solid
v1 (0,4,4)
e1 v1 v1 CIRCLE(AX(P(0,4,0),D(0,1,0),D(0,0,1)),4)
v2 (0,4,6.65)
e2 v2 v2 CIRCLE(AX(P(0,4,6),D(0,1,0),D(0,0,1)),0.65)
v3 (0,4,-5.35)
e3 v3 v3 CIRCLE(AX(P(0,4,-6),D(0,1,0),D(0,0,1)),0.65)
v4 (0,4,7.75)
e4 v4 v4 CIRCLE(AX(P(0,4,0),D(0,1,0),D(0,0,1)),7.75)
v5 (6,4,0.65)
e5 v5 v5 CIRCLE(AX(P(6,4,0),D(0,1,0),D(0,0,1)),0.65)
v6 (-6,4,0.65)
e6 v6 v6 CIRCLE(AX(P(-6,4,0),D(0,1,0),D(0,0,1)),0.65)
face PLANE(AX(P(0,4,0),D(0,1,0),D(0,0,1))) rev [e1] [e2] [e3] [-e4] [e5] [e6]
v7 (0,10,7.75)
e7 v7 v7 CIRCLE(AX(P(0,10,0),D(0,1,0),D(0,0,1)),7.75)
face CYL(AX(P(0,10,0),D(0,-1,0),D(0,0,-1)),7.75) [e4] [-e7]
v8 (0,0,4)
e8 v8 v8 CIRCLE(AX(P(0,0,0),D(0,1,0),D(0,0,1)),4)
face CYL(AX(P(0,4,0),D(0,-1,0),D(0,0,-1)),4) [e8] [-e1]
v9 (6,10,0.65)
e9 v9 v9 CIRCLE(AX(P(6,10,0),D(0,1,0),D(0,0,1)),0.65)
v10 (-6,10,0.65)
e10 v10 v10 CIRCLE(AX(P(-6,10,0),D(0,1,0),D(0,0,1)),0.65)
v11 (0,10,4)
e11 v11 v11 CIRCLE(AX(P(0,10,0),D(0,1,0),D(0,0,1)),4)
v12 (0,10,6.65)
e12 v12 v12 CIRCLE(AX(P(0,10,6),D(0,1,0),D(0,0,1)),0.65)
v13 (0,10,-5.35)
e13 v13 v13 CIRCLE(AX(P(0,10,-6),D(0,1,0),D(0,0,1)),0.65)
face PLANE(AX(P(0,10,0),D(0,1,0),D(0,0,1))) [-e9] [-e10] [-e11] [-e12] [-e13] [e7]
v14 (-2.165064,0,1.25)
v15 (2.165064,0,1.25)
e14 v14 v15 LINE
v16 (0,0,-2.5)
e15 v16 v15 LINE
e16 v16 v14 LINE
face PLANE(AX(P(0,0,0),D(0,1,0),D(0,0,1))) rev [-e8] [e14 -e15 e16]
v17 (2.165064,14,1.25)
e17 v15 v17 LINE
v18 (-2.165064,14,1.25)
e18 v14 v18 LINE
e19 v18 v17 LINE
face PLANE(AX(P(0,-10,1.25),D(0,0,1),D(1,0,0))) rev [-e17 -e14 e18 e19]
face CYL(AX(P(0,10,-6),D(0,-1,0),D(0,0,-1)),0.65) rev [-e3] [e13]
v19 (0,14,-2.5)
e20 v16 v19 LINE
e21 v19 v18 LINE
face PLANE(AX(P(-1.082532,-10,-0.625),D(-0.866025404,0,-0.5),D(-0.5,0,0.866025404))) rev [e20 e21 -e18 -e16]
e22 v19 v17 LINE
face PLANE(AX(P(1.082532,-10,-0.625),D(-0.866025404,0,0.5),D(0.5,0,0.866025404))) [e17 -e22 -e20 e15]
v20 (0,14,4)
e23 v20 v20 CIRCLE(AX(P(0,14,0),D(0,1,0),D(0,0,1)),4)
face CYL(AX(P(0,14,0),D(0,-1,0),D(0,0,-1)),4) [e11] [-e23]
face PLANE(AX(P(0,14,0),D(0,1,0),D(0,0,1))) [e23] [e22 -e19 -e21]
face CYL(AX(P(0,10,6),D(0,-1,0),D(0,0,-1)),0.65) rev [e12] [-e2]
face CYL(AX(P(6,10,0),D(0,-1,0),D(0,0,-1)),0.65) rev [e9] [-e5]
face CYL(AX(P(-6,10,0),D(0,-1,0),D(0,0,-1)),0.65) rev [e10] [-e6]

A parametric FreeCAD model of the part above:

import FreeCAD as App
import Part
import Sketcher

V = App.Vector
Q = App.Units.Quantity


def add_polygon(sketch, points):
    """Adds a closed chain of lines whose ends are joined by coincident constraints."""
    first, n = sketch.GeometryCount, len(points)
    for a, b in zip(points, points[1:] + points[:1]):
        sketch.addGeometry(Part.LineSegment(App.Vector(*a, 0), App.Vector(*b, 0)), False)
    for i in range(n):
        sketch.addConstraint(Sketcher.Constraint("Coincident", first + i, 2, first + (i + 1) % n, 1))

doc = App.newDocument("Part")
body = doc.addObject("PartDesign::Body", "Body")

# Sketch on XZ plane
sketch1 = body.newObject("Sketcher::SketchObject", "Sketch")
sketch1.AttachmentSupport = (doc.getObject("XZ_Plane"), [""])
sketch1.MapMode = "FlatFace"
sketch1.addGeometry(Part.Circle(V(0, 0, 0), V(0, 0, 1), 4), False)
sketch1.addConstraint([
    Sketcher.Constraint("Coincident", 0, 3, -1, 1),
    Sketcher.Constraint("Diameter", 0, 8.0),
])
pad1 = body.newObject("PartDesign::Pad", "Pad")
pad1.Profile = sketch1
pad1.Length = 4
pad1.Reversed = True

# Sketch on XZ plane
sketch2 = body.newObject("Sketcher::SketchObject", "Sketch001")
sketch2.AttachmentSupport = (doc.getObject("XZ_Plane"), [""])
sketch2.MapMode = "FlatFace"
sketch2.AttachmentOffset = App.Placement(V(0, 0, -4), App.Rotation())
sketch2.addGeometry([
    Part.Circle(V(0, 0, 0), V(0, 0, 1), 7.8),  # 0
    Part.Circle(V(0, -6, 0), V(0, 0, 1), 0.7),  # 1
    Part.Circle(V(-6, 0, 0), V(0, 0, 1), 0.7),  # 2
    Part.Circle(V(6, 0, 0), V(0, 0, 1), 0.7),  # 3
    Part.Circle(V(0, 6, 0), V(0, 0, 1), 0.7),  # 4
], False)
sketch2.addConstraint([
    Sketcher.Constraint("Coincident", 0, 3, -1, 1),
    Sketcher.Constraint("Equal", 1, 2),
    Sketcher.Constraint("Equal", 2, 3),
    Sketcher.Constraint("Equal", 3, 4),
    Sketcher.Constraint("Symmetric", 2, 3, 3, 3, -1, 1),
    Sketcher.Constraint("Symmetric", 1, 3, 4, 3, -1, 1),
    Sketcher.Constraint("PointOnObject", 1, 3, -2),
    Sketcher.Constraint("PointOnObject", 2, 3, -1),
    Sketcher.Constraint("Diameter", 0, 15.5),
    Sketcher.Constraint("Diameter", 1, 1.3),
    Sketcher.Constraint("DistanceY", 1, 3, -1, 1, 6.0),
    Sketcher.Constraint("DistanceX", 2, 3, -1, 1, 6.0),
])
pad2 = body.newObject("PartDesign::Pad", "Pad001")
pad2.Profile = sketch2
pad2.Length = 6
pad2.Reversed = True

# Sketch on XZ plane
sketch3 = body.newObject("Sketcher::SketchObject", "Sketch002")
sketch3.AttachmentSupport = (doc.getObject("XZ_Plane"), [""])
sketch3.MapMode = "FlatFace"
sketch3.AttachmentOffset = App.Placement(V(0, 0, -10), App.Rotation())
sketch3.addGeometry(Part.Circle(V(0, 0, 0), V(0, 0, 1), 4), False)
sketch3.addConstraint([
    Sketcher.Constraint("Coincident", 0, 3, -1, 1),
    Sketcher.Constraint("Diameter", 0, 8.0),
])
pad3 = body.newObject("PartDesign::Pad", "Pad002")
pad3.Profile = sketch3
pad3.Length = 4
pad3.Reversed = True

# Sketch on XZ plane
sketch4 = body.newObject("Sketcher::SketchObject", "Sketch003")
sketch4.AttachmentSupport = (doc.getObject("XZ_Plane"), [""])
sketch4.MapMode = "FlatFace"
sketch4.AttachmentOffset = App.Placement(V(0, 0, -14), App.Rotation())
add_polygon(sketch4, [(2.2, 1.2), (0, -2.5), (-2.2, 1.2)])  # lines 0-2
sketch4.addConstraint([
    Sketcher.Constraint("Horizontal", 2),
    Sketcher.Constraint("PointOnObject", 0, 2, -2),
    Sketcher.Constraint("Equal", 0, 1),
    Sketcher.Constraint("Angle", 0, Q("-120 deg")),
    Sketcher.Constraint("DistanceY", 0, 2, -1, 1, 2.5),
    Sketcher.Constraint("DistanceY", -1, 1, 1, 2, 1.25),
])
pocket1 = body.newObject("PartDesign::Pocket", "Pocket")
pocket1.Profile = sketch4
pocket1.Length = 24
pocket1.Reversed = True

doc.recompute()
